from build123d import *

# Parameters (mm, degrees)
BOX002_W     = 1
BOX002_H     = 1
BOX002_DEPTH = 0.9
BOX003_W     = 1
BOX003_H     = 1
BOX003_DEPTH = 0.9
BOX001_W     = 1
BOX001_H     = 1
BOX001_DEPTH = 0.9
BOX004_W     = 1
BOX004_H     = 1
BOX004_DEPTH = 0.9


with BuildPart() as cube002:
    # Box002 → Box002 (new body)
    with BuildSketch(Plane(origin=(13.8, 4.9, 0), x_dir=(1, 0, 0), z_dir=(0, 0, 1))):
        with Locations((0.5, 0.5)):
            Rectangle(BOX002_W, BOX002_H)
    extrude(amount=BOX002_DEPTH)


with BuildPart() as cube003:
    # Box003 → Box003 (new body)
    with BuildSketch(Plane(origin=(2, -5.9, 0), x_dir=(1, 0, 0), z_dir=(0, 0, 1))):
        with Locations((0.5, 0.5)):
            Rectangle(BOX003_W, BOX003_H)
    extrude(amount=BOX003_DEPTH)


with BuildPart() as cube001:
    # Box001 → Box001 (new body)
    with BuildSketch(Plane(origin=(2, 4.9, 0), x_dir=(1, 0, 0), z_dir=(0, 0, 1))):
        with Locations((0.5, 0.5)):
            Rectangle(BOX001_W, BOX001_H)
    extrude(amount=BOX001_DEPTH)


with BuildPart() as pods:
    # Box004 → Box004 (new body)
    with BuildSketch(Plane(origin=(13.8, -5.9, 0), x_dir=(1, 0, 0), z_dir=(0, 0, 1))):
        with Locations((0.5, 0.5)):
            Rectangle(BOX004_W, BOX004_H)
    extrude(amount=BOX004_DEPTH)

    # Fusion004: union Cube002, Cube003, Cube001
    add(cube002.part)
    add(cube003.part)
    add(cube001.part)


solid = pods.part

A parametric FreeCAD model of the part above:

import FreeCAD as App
import Part
import Sketcher

V = App.Vector


def add_polygon(sketch, points):
    """Adds a closed chain of lines whose ends are joined by coincident constraints."""
    first, n = sketch.GeometryCount, len(points)
    for a, b in zip(points, points[1:] + points[:1]):
        sketch.addGeometry(Part.LineSegment(App.Vector(*a, 0), App.Vector(*b, 0)), False)
    for i in range(n):
        sketch.addConstraint(Sketcher.Constraint("Coincident", first + i, 2, first + (i + 1) % n, 1))

doc = App.newDocument("Part")
body = doc.addObject("PartDesign::Body", "Body")

# Sketch on XY plane
sketch1 = body.newObject("Sketcher::SketchObject", "Sketch")
sketch1.AttachmentSupport = (doc.getObject("XY_Plane"), [""])
sketch1.MapMode = "FlatFace"
add_polygon(sketch1, [(13.8, 5.9), (13.8, 4.9), (14.8, 4.9), (14.8, 5.9)])  # lines 0-3
sketch1.addConstraint(Sketcher.Constraint("Vertical", 0))
sketch1.addConstraint(Sketcher.Constraint("Horizontal", 1))
sketch1.addConstraint(Sketcher.Constraint("Vertical", 2))
sketch1.addConstraint(Sketcher.Constraint("Horizontal", 3))
sketch1.addConstraint(Sketcher.Constraint("Equal", 3, 0))
sketch1.addConstraint(Sketcher.Constraint("DistanceX", 1, 1, 1, 2, 1.0))
sketch1.addConstraint(Sketcher.Constraint("DistanceX", -1, 1, 0, 2, 13.8))
sketch1.addConstraint(Sketcher.Constraint("DistanceY", -1, 1, 0, 2, 4.9))
pad1 = body.newObject("PartDesign::Pad", "Pad")
pad1.Profile = sketch1
pad1.Length = 0.9
body2 = doc.addObject("PartDesign::Body", "Body001")

# Sketch on XY plane
sketch2 = body2.newObject("Sketcher::SketchObject", "Sketch001")
sketch2.AttachmentSupport = (doc.getObject("XY_Plane001"), [""])
sketch2.MapMode = "FlatFace"
add_polygon(sketch2, [(2, -4.9), (2, -5.9), (3, -5.9), (3, -4.9)])  # lines 0-3
sketch2.addConstraint(Sketcher.Constraint("Vertical", 0))
sketch2.addConstraint(Sketcher.Constraint("Horizontal", 1))
sketch2.addConstraint(Sketcher.Constraint("Vertical", 2))
sketch2.addConstraint(Sketcher.Constraint("Horizontal", 3))
sketch2.addConstraint(Sketcher.Constraint("Equal", 3, 0))
sketch2.addConstraint(Sketcher.Constraint("DistanceX", 1, 1, 1, 2, 1.0))
sketch2.addConstraint(Sketcher.Constraint("DistanceX", -1, 1, 0, 2, 2.0))
sketch2.addConstraint(Sketcher.Constraint("DistanceY", 0, 2, -1, 1, 5.9))
pad2 = body2.newObject("PartDesign::Pad", "Pad001")
pad2.Profile = sketch2
pad2.Length = 0.9
body3 = doc.addObject("PartDesign::Body", "Body002")

# Sketch on XY plane
sketch3 = body3.newObject("Sketcher::SketchObject", "Sketch002")
sketch3.AttachmentSupport = (doc.getObject("XY_Plane002"), [""])
sketch3.MapMode = "FlatFace"
add_polygon(sketch3, [(2, 5.9), (2, 4.9), (3, 4.9), (3, 5.9)])  # lines 0-3
sketch3.addConstraint(Sketcher.Constraint("Vertical", 0))
sketch3.addConstraint(Sketcher.Constraint("Horizontal", 1))
sketch3.addConstraint(Sketcher.Constraint("Vertical", 2))
sketch3.addConstraint(Sketcher.Constraint("Horizontal", 3))
sketch3.addConstraint(Sketcher.Constraint("Equal", 3, 0))
sketch3.addConstraint(Sketcher.Constraint("DistanceX", 1, 1, 1, 2, 1.0))
sketch3.addConstraint(Sketcher.Constraint("DistanceX", -1, 1, 0, 2, 2.0))
sketch3.addConstraint(Sketcher.Constraint("DistanceY", -1, 1, 0, 2, 4.9))
pad3 = body3.newObject("PartDesign::Pad", "Pad002")
pad3.Profile = sketch3
pad3.Length = 0.9
body4 = doc.addObject("PartDesign::Body", "Body003")
body4.AllowCompound = True

# Sketch on XY plane
sketch4 = body4.newObject("Sketcher::SketchObject", "Sketch003")
sketch4.AttachmentSupport = (doc.getObject("XY_Plane003"), [""])
sketch4.MapMode = "FlatFace"
add_polygon(sketch4, [(13.8, -4.9), (13.8, -5.9), (14.8, -5.9), (14.8, -4.9)])  # lines 0-3
sketch4.addConstraint(Sketcher.Constraint("Vertical", 0))
sketch4.addConstraint(Sketcher.Constraint("Horizontal", 1))
sketch4.addConstraint(Sketcher.Constraint("Vertical", 2))
sketch4.addConstraint(Sketcher.Constraint("Horizontal", 3))
sketch4.addConstraint(Sketcher.Constraint("Equal", 3, 0))
sketch4.addConstraint(Sketcher.Constraint("DistanceX", 1, 1, 1, 2, 1.0))
sketch4.addConstraint(Sketcher.Constraint("DistanceX", -1, 1, 0, 2, 13.8))
sketch4.addConstraint(Sketcher.Constraint("DistanceY", 0, 2, -1, 1, 5.9))
pad4 = body4.newObject("PartDesign::Pad", "Pad003")
pad4.Profile = sketch4
pad4.Length = 0.9
doc.recompute()

boolean = body4.newObject("PartDesign::Boolean", "Boolean")
boolean.Type = "Fuse"
boolean.addObjects([body])
doc.recompute()

boolean2 = body4.newObject("PartDesign::Boolean", "Boolean001")
boolean2.Type = "Fuse"
boolean2.addObjects([body2])
doc.recompute()

boolean3 = body4.newObject("PartDesign::Boolean", "Boolean002")
boolean3.Type = "Fuse"
boolean3.addObjects([body3])

doc.recompute()
